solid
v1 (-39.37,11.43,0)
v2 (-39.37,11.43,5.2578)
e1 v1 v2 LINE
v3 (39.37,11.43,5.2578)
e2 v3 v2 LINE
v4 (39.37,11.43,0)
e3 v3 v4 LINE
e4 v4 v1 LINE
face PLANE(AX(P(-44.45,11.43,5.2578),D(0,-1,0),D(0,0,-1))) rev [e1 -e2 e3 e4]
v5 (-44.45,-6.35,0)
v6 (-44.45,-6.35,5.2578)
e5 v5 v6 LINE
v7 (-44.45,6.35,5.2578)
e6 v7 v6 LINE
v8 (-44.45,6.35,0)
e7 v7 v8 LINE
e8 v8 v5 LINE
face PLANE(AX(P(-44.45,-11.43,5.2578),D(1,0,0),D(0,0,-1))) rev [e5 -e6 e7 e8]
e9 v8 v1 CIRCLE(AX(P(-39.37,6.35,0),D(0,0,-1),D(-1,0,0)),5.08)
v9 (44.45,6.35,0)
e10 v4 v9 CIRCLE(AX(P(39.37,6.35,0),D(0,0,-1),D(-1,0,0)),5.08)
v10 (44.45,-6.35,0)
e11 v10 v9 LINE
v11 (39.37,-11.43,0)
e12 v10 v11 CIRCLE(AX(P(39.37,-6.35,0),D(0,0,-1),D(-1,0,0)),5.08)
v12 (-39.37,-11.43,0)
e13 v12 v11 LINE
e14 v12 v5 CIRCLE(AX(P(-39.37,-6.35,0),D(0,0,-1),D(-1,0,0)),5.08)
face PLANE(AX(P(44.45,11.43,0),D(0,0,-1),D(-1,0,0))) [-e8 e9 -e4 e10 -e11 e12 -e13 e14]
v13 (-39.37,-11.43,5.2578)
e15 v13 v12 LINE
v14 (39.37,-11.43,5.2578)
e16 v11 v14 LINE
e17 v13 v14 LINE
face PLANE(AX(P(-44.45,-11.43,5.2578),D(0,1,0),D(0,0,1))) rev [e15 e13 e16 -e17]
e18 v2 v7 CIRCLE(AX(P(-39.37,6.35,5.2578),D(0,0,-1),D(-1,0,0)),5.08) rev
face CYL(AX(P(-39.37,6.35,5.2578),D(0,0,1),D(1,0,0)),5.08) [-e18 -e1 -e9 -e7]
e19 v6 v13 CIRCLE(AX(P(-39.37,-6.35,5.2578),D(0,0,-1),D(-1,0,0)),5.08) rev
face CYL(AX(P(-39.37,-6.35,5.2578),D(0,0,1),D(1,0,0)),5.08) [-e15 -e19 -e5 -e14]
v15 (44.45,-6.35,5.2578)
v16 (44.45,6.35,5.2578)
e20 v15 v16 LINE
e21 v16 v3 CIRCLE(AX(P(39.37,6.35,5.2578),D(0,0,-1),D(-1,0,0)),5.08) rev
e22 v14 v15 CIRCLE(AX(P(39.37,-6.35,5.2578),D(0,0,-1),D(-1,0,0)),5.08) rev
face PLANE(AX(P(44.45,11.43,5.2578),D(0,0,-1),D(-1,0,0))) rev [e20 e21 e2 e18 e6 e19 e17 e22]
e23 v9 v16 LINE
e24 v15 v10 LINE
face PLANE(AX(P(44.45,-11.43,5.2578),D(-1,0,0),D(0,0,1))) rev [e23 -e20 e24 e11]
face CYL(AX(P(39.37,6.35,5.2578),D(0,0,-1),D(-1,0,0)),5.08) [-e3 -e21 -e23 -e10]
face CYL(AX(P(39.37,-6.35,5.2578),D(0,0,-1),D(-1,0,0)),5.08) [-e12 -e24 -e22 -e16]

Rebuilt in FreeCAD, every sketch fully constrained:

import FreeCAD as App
import Part
import Sketcher
from FreeCAD import Vector
Q = App.Units.Quantity


def edges_at(feature, points):
    """Names of the edges that pass closest to the given points."""
    edges = feature.Shape.Edges
    near = lambda p: min(range(len(edges)), key=lambda i: edges[i].distToShape(Part.Vertex(*p))[0])
    return sorted({f"Edge{near(p) + 1}" for p in points})

doc = App.newDocument("Part")
body = doc.addObject("PartDesign::Body", "Body")

sketch1 = body.newObject("Sketcher::SketchObject", "Sketch")
sketch1.AttachmentSupport = (doc.getObject("XY_Plane"), [""])
sketch1.MapMode = "FlatFace"
sketch1.addGeometry(Part.LineSegment(Vector(-44, 11, 0), Vector(-44, -11, 0)), False)
sketch1.addGeometry(Part.LineSegment(Vector(-44, -11, 0), Vector(44, -11, 0)), False)
sketch1.addGeometry(Part.LineSegment(Vector(44, -11, 0), Vector(44, 11, 0)), False)
sketch1.addGeometry(Part.LineSegment(Vector(44, 11, 0), Vector(-44, 11, 0)), False)
sketch1.addConstraint(Sketcher.Constraint("Coincident", 0, 2, 1, 1))
sketch1.addConstraint(Sketcher.Constraint("Coincident", 1, 2, 2, 1))
sketch1.addConstraint(Sketcher.Constraint("Coincident", 2, 2, 3, 1))
sketch1.addConstraint(Sketcher.Constraint("Coincident", 3, 2, 0, 1))
sketch1.addConstraint(Sketcher.Constraint("Vertical", 0))
sketch1.addConstraint(Sketcher.Constraint("Horizontal", 1))
sketch1.addConstraint(Sketcher.Constraint("Vertical", 2))
sketch1.addConstraint(Sketcher.Constraint("Horizontal", 3))
sketch1.addConstraint(Sketcher.Constraint("Symmetric", 0, 2, 2, 2, -1, 1))
sketch1.addConstraint(Sketcher.Constraint("DistanceX", 1, 1, 1, 2, Q("3.5 in")))
sketch1.addConstraint(Sketcher.Constraint("DistanceY", 0, 2, 0, 1, Q("0.9 in")))
pad1 = body.newObject("PartDesign::Pad", "Pad")
pad1.Profile = sketch1
pad1.Length = Q("0.207 in")
doc.recompute()

fillet = body.newObject("PartDesign::Fillet", "Fillet")
fillet.Base = (pad1, edges_at(pad1, [(-44.45, 11.43, 2.629)]))
fillet.Radius = Q("0.2 in")
doc.recompute()

fillet2 = body.newObject("PartDesign::Fillet", "Fillet001")
fillet2.Base = (fillet, edges_at(fillet, [(44.45, 11.43, 2.629)]))
fillet2.Radius = Q("0.2 in")
doc.recompute()

fillet3 = body.newObject("PartDesign::Fillet", "Fillet002")
fillet3.Base = (fillet2, edges_at(fillet2, [(44.45, -11.43, 2.629)]))
fillet3.Radius = Q("0.2 in")
doc.recompute()

fillet4 = body.newObject("PartDesign::Fillet", "Fillet003")
fillet4.Base = (fillet3, edges_at(fillet3, [(-44.45, -11.43, 2.629)]))
fillet4.Radius = Q("0.2 in")

doc.recompute()
